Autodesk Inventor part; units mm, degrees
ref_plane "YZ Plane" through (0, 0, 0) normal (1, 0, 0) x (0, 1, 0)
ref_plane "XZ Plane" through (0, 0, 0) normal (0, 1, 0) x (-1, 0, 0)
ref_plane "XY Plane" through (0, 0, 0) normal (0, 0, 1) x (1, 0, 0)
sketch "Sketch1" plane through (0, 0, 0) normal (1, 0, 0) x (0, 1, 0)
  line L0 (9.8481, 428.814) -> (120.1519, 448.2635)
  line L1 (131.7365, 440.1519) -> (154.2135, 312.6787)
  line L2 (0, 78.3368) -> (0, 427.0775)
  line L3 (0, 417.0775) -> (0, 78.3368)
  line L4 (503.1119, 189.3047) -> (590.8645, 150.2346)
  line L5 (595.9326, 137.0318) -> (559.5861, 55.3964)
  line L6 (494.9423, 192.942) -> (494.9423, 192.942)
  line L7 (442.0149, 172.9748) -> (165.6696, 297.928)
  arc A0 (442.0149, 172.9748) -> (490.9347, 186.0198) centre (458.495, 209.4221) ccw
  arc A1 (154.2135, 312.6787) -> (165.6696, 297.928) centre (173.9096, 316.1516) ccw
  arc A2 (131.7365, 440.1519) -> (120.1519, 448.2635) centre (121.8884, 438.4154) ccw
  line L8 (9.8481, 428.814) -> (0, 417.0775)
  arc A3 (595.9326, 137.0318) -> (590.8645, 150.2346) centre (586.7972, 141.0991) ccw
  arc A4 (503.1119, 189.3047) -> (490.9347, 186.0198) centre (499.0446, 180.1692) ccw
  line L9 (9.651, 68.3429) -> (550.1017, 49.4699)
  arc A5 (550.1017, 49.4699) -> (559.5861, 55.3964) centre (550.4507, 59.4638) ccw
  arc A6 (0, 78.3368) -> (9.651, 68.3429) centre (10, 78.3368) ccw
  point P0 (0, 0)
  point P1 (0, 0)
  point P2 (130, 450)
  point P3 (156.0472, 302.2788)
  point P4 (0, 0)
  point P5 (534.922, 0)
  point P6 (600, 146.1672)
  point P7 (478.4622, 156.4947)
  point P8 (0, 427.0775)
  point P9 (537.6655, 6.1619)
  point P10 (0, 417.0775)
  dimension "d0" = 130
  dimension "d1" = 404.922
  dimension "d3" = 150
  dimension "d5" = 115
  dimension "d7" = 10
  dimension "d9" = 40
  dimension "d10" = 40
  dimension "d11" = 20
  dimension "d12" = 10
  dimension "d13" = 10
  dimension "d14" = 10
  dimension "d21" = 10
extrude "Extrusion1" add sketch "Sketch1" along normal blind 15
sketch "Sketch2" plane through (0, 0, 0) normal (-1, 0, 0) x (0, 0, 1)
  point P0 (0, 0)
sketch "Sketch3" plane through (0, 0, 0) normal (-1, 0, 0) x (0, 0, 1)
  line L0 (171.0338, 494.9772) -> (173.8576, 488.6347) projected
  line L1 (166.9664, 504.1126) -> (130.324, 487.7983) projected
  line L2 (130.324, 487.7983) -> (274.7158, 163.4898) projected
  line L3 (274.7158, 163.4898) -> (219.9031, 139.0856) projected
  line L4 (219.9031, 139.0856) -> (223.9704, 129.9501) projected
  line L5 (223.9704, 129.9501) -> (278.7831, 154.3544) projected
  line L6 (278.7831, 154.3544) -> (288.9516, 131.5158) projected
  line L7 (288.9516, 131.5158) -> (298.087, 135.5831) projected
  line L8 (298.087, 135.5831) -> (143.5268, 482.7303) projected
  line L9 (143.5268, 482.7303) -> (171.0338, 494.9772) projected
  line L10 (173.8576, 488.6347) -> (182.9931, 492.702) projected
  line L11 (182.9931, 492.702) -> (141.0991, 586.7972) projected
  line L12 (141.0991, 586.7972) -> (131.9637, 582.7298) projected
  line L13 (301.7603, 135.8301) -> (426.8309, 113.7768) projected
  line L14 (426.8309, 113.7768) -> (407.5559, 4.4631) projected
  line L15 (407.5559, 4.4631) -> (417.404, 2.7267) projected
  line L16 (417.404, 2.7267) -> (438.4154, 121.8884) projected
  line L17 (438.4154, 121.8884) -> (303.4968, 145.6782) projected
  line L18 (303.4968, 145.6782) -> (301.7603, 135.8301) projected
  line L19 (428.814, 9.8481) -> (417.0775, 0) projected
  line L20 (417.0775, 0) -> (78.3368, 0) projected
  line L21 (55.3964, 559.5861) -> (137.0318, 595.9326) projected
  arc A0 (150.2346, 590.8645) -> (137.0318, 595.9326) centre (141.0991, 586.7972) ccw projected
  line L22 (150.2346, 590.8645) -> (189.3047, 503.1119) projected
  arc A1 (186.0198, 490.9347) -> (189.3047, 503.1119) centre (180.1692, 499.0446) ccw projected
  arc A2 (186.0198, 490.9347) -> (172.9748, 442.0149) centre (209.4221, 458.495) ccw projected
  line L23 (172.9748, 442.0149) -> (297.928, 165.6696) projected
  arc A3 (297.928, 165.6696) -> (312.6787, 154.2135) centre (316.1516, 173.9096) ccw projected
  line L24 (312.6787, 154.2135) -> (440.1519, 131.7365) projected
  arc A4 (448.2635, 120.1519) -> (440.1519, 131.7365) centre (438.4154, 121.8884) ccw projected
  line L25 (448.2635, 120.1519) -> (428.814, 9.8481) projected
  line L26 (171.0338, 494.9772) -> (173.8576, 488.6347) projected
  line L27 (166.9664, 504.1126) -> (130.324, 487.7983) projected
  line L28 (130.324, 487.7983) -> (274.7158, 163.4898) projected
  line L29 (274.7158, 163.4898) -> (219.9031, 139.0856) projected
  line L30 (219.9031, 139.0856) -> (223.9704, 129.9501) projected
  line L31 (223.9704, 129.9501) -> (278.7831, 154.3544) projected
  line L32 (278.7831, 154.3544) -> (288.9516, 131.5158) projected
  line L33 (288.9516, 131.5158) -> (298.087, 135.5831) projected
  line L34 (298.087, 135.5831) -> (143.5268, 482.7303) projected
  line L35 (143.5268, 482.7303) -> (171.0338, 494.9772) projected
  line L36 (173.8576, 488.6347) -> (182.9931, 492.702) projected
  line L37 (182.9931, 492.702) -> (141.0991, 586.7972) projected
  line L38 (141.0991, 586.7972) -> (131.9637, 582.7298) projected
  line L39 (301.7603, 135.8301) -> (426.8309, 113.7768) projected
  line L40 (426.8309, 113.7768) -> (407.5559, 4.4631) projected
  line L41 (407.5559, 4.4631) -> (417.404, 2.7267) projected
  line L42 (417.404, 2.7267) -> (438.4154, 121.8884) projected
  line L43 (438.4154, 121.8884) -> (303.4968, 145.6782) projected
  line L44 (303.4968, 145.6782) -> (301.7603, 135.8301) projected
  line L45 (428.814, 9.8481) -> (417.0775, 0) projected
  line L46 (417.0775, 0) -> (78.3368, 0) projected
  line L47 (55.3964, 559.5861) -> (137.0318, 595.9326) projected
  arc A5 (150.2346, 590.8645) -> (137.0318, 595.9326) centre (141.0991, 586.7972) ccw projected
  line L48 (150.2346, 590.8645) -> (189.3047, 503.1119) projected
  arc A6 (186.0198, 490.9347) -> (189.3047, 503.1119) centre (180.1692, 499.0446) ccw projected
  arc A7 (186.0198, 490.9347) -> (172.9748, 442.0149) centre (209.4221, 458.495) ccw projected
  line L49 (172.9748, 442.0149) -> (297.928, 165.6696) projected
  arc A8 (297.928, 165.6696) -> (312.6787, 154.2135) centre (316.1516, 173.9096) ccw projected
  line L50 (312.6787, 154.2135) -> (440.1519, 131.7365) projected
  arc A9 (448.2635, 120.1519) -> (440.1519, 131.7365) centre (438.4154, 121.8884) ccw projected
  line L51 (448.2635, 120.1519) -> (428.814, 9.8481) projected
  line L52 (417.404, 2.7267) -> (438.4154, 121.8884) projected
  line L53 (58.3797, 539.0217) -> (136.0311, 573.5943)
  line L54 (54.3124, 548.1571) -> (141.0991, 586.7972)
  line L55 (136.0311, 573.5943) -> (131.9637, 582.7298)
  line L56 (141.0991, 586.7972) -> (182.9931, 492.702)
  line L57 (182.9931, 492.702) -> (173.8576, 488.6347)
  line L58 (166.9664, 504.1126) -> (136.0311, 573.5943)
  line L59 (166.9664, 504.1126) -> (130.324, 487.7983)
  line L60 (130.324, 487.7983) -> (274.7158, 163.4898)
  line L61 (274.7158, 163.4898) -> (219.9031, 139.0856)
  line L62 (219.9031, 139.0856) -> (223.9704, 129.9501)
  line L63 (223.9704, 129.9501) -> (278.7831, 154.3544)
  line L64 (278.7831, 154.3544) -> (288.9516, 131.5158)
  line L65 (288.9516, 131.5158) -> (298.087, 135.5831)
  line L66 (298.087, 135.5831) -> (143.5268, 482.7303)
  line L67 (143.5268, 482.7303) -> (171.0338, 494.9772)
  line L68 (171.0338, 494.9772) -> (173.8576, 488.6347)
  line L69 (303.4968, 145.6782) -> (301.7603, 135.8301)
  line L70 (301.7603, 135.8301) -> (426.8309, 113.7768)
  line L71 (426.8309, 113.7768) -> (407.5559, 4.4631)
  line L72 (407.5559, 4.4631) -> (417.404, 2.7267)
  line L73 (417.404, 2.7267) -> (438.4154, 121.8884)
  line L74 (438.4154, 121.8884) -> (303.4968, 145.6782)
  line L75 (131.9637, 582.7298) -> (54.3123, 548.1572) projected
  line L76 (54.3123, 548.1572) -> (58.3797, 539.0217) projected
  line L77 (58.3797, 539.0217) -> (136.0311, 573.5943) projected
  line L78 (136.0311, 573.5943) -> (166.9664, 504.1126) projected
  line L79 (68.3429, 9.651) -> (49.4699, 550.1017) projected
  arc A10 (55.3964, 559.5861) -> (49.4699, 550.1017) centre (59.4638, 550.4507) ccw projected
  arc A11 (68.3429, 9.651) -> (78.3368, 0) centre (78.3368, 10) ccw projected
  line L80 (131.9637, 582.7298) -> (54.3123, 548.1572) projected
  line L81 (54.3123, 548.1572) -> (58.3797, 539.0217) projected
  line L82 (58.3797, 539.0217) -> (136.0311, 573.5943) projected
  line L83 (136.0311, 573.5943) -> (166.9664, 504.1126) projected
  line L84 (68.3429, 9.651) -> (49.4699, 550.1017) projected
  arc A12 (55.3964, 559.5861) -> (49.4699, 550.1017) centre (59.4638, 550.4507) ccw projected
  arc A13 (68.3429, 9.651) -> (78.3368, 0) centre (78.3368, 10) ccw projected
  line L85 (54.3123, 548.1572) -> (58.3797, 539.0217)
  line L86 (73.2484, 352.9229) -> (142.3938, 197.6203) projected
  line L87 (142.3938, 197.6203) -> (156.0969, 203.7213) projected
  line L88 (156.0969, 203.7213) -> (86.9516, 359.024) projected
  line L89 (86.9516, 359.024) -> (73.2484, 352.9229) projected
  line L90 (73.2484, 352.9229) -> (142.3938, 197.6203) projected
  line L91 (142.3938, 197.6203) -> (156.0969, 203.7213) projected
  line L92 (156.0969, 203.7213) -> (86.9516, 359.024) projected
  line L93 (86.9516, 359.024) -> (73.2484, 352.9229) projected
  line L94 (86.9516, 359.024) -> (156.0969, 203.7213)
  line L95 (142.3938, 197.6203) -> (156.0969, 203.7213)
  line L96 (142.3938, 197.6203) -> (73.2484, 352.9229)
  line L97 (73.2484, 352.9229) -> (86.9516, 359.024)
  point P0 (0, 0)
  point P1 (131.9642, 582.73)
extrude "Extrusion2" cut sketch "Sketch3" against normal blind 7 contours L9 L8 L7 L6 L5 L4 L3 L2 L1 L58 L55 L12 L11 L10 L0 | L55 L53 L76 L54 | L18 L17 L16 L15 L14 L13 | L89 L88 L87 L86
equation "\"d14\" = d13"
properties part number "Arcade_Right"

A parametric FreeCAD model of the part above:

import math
import FreeCAD as App
import Part
import Sketcher

V = App.Vector
Q = App.Units.Quantity


def add_polygon(sketch, points):
    """Adds a closed chain of lines whose ends are joined by coincident constraints."""
    first, n = sketch.GeometryCount, len(points)
    for a, b in zip(points, points[1:] + points[:1]):
        sketch.addGeometry(Part.LineSegment(App.Vector(*a, 0), App.Vector(*b, 0)), False)
    for i in range(n):
        sketch.addConstraint(Sketcher.Constraint("Coincident", first + i, 2, first + (i + 1) % n, 1))

doc = App.newDocument("Part")
body = doc.addObject("PartDesign::Body", "Body")

sketch1 = body.newObject("Sketcher::SketchObject", "Sketch")
sketch1.AttachmentSupport = (doc.getObject("YZ_Plane"), [""])
sketch1.MapMode = "FlatFace"
sketch1.addGeometry([
    Part.LineSegment(V(120, 448, 0), V(10, 429, 0)),
    Part.LineSegment(V(10, 429, 0), V(0, 417, 0)),
    Part.LineSegment(V(0, 417, 0), V(0, 78, 0)),
    Part.ArcOfCircle(Part.Circle(V(10, 78, 0), V(0, 0, 1), 10), math.radians(180), math.radians(268)),
    Part.LineSegment(V(10, 68, 0), V(550, 49, 0)),
    Part.ArcOfCircle(Part.Circle(V(550, 59, 0), V(0, 0, 1), 10), math.radians(-92), math.radians(-24)),
    Part.LineSegment(V(560, 55, 0), V(596, 137, 0)),
    Part.ArcOfCircle(Part.Circle(V(587, 141, 0), V(0, 0, 1), 10), math.radians(-24), math.radians(66)),
    Part.LineSegment(V(591, 150, 0), V(503, 189, 0)),
    Part.ArcOfCircle(Part.Circle(V(499, 180, 0), V(0, 0, 1), 10), math.radians(66), math.radians(144)),
    Part.ArcOfCircle(Part.Circle(V(458, 209, 0), V(0, 0, 1), 40), math.radians(-114), math.radians(-36)),
    Part.LineSegment(V(442, 173, 0), V(166, 298, 0)),
    Part.ArcOfCircle(Part.Circle(V(174, 316, 0), V(0, 0, 1), 20), math.radians(-170), math.radians(-114)),
    Part.LineSegment(V(154, 313, 0), V(132, 440, 0)),
    Part.ArcOfCircle(Part.Circle(V(122, 438, 0), V(0, 0, 1), 10), math.radians(10), math.radians(100)),
], False)
sketch1.addConstraint([
    Sketcher.Constraint("Coincident", 0, 2, 1, 1),
    Sketcher.Constraint("Coincident", 1, 2, 2, 1),
    Sketcher.Constraint("Tangent", 2, 2, 3, 1),
    Sketcher.Constraint("Tangent", 3, 2, 4, 1),
    Sketcher.Constraint("Tangent", 4, 2, 5, 1),
    Sketcher.Constraint("Tangent", 5, 2, 6, 1),
    Sketcher.Constraint("Tangent", 6, 2, 7, 1),
    Sketcher.Constraint("Tangent", 7, 2, 8, 1),
    Sketcher.Constraint("Tangent", 8, 2, 9, 1),
    Sketcher.Constraint("Tangent", 9, 2, 10, 2),
    Sketcher.Constraint("Tangent", 10, 1, 11, 1),
    Sketcher.Constraint("Tangent", 11, 2, 12, 2),
    Sketcher.Constraint("Tangent", 12, 1, 13, 1),
    Sketcher.Constraint("Tangent", 13, 2, 14, 1),
    Sketcher.Constraint("Tangent", 14, 2, 0, 1),
    Sketcher.Constraint("Vertical", 2),
    Sketcher.Constraint("Equal", 3, 5),
    Sketcher.Constraint("Equal", 5, 7),
    Sketcher.Constraint("Equal", 7, 9),
    Sketcher.Constraint("Equal", 9, 14),
    Sketcher.Constraint("PointOnObject", 1, 2, -2),
    Sketcher.Constraint("Perpendicular", 6, 8),
    Sketcher.Constraint("Perpendicular", 0, 13),
    Sketcher.Constraint("Radius", 3, Q("10 mm")),
    Sketcher.Constraint("Radius", 10, Q("40 mm")),
    Sketcher.Constraint("Radius", 12, Q("20 mm")),
    Sketcher.Constraint("Angle", 1, Q("-130 deg")),
    Sketcher.Constraint("Angle", 0, Q("-170 deg")),
    Sketcher.Constraint("Angle", 4, Q("-2 deg")),
    Sketcher.Constraint("Angle", 6, Q("66 deg")),
    Sketcher.Constraint("Angle", 11, Q("155.6693 deg")),
    Sketcher.Constraint("DistanceY", -1, 1, 4, 2, Q("49.47 mm")),
    Sketcher.Constraint("DistanceY", 7, 3, 9, 3, Q("39.07 mm")),
    Sketcher.Constraint("DistanceX", 9, 2, 9, 3, Q("8.11 mm")),
    Sketcher.Constraint("Distance", 1, Q("15.321 mm")),
    Sketcher.Constraint("Distance", 6, Q("89.361 mm")),
    Sketcher.Constraint("Distance", 11, Q("303.282 mm")),
    Sketcher.Constraint("DistanceY", 2, 2, 2, 1, Q("338.7407 mm")),
    Sketcher.Constraint("DistanceX", -1, 1, 10, 3, Q("458.495 mm")),
])
pad1 = body.newObject("PartDesign::Pad", "Pad")
pad1.Profile = sketch1
pad1.Length = 15

sketch2 = body.newObject("Sketcher::SketchObject", "Sketch001")
sketch2.AttachmentSupport = (doc.getObject("YZ_Plane"), [""])
sketch2.MapMode = "FlatFace"
add_polygon(sketch2, [(483, 144), (495, 171), (489, 174), (493, 183), (587, 141), (583, 132), (548, 54), (539, 58), (574, 136), (504, 167), (488, 130), (163, 275), (139, 220), (130, 224), (154, 279), (132, 289), (136, 298)])
add_polygon(sketch2, [(146, 303), (136, 302), (114, 427), (4, 408), (3, 417), (122, 438)])
add_polygon(sketch2, [(359, 87), (353, 73), (198, 142), (204, 156)])
sketch2.addConstraint([
    Sketcher.Constraint("Perpendicular", 0, 1),
    Sketcher.Constraint("Perpendicular", 1, 2),
    Sketcher.Constraint("Perpendicular", 2, 3),
    Sketcher.Constraint("Perpendicular", 3, 4),
    Sketcher.Constraint("Parallel", 4, 5),
    Sketcher.Constraint("Perpendicular", 5, 6),
    Sketcher.Constraint("Perpendicular", 6, 7),
    Sketcher.Constraint("Perpendicular", 7, 8),
    Sketcher.Constraint("Perpendicular", 8, 9),
    Sketcher.Constraint("Perpendicular", 9, 10),
    Sketcher.Constraint("Perpendicular", 10, 11),
    Sketcher.Constraint("Perpendicular", 11, 12),
    Sketcher.Constraint("Perpendicular", 12, 13),
    Sketcher.Constraint("Perpendicular", 13, 14),
    Sketcher.Constraint("Perpendicular", 14, 15),
    Sketcher.Constraint("Perpendicular", 15, 16),
    Sketcher.Constraint("Perpendicular", 17, 18),
    Sketcher.Constraint("Perpendicular", 18, 19),
    Sketcher.Constraint("Perpendicular", 19, 20),
    Sketcher.Constraint("Perpendicular", 20, 21),
    Sketcher.Constraint("Perpendicular", 21, 22),
    Sketcher.Constraint("Perpendicular", 16, 23),
    Sketcher.Constraint("Perpendicular", 23, 24),
    Sketcher.Constraint("Perpendicular", 24, 25),
    Sketcher.Constraint("Perpendicular", 25, 26),
    Sketcher.Constraint("Equal", 2, 4),
    Sketcher.Constraint("Equal", 4, 6),
    Sketcher.Constraint("Equal", 5, 7),
    Sketcher.Constraint("Equal", 6, 12),
    Sketcher.Constraint("Equal", 11, 13),
    Sketcher.Constraint("Equal", 12, 15),
    Sketcher.Constraint("Equal", 15, 17),
    Sketcher.Constraint("Equal", 17, 20),
    Sketcher.Constraint("Angle", 0, Q("66 deg")),
    Sketcher.Constraint("Angle", 17, Q("-170 deg")),
    Sketcher.Constraint("Distance", 2, Q("10 mm")),
    Sketcher.Constraint("Distance", 3, Q("103 mm")),
    Sketcher.Constraint("Distance", 5, Q("85 mm")),
    Sketcher.Constraint("Distance", 10, Q("355 mm")),
    Sketcher.Constraint("Distance", 11, Q("60 mm")),
    Sketcher.Constraint("Distance", 14, Q("25 mm")),
    Sketcher.Constraint("Distance", 16, Q("380 mm")),
    Sketcher.Constraint("Distance", 18, Q("127 mm")),
    Sketcher.Constraint("Distance", 19, Q("111 mm")),
    Sketcher.Constraint("Distance", 23, Q("15 mm")),
    Sketcher.Constraint("Distance", 24, Q("170 mm")),
    Sketcher.Constraint("DistanceX", -1, 1, 12, 2, Q("129.95 mm")),
    Sketcher.Constraint("DistanceX", -1, 1, 17, 2, Q("135.83 mm")),
    Sketcher.Constraint("DistanceX", 0, 2, 3, 2, Q("91.82 mm")),
    Sketcher.Constraint("DistanceY", 2, 2, 11, 2, Q("36.91 mm")),
    Sketcher.Constraint("DistanceY", 12, 2, 17, 2, Q("77.79 mm")),
    Sketcher.Constraint("DistanceY", -1, 1, 2, 2, Q("182.993 mm")),
    Sketcher.Constraint("DistanceX", -1, 1, 23, 2, Q("352.923 mm")),
    Sketcher.Constraint("DistanceY", -1, 1, 25, 2, Q("156.097 mm")),
])
pocket1 = body.newObject("PartDesign::Pocket", "Pocket")
pocket1.Profile = sketch2
pocket1.Length = 7
pocket1.Reversed = True

doc.recompute()
